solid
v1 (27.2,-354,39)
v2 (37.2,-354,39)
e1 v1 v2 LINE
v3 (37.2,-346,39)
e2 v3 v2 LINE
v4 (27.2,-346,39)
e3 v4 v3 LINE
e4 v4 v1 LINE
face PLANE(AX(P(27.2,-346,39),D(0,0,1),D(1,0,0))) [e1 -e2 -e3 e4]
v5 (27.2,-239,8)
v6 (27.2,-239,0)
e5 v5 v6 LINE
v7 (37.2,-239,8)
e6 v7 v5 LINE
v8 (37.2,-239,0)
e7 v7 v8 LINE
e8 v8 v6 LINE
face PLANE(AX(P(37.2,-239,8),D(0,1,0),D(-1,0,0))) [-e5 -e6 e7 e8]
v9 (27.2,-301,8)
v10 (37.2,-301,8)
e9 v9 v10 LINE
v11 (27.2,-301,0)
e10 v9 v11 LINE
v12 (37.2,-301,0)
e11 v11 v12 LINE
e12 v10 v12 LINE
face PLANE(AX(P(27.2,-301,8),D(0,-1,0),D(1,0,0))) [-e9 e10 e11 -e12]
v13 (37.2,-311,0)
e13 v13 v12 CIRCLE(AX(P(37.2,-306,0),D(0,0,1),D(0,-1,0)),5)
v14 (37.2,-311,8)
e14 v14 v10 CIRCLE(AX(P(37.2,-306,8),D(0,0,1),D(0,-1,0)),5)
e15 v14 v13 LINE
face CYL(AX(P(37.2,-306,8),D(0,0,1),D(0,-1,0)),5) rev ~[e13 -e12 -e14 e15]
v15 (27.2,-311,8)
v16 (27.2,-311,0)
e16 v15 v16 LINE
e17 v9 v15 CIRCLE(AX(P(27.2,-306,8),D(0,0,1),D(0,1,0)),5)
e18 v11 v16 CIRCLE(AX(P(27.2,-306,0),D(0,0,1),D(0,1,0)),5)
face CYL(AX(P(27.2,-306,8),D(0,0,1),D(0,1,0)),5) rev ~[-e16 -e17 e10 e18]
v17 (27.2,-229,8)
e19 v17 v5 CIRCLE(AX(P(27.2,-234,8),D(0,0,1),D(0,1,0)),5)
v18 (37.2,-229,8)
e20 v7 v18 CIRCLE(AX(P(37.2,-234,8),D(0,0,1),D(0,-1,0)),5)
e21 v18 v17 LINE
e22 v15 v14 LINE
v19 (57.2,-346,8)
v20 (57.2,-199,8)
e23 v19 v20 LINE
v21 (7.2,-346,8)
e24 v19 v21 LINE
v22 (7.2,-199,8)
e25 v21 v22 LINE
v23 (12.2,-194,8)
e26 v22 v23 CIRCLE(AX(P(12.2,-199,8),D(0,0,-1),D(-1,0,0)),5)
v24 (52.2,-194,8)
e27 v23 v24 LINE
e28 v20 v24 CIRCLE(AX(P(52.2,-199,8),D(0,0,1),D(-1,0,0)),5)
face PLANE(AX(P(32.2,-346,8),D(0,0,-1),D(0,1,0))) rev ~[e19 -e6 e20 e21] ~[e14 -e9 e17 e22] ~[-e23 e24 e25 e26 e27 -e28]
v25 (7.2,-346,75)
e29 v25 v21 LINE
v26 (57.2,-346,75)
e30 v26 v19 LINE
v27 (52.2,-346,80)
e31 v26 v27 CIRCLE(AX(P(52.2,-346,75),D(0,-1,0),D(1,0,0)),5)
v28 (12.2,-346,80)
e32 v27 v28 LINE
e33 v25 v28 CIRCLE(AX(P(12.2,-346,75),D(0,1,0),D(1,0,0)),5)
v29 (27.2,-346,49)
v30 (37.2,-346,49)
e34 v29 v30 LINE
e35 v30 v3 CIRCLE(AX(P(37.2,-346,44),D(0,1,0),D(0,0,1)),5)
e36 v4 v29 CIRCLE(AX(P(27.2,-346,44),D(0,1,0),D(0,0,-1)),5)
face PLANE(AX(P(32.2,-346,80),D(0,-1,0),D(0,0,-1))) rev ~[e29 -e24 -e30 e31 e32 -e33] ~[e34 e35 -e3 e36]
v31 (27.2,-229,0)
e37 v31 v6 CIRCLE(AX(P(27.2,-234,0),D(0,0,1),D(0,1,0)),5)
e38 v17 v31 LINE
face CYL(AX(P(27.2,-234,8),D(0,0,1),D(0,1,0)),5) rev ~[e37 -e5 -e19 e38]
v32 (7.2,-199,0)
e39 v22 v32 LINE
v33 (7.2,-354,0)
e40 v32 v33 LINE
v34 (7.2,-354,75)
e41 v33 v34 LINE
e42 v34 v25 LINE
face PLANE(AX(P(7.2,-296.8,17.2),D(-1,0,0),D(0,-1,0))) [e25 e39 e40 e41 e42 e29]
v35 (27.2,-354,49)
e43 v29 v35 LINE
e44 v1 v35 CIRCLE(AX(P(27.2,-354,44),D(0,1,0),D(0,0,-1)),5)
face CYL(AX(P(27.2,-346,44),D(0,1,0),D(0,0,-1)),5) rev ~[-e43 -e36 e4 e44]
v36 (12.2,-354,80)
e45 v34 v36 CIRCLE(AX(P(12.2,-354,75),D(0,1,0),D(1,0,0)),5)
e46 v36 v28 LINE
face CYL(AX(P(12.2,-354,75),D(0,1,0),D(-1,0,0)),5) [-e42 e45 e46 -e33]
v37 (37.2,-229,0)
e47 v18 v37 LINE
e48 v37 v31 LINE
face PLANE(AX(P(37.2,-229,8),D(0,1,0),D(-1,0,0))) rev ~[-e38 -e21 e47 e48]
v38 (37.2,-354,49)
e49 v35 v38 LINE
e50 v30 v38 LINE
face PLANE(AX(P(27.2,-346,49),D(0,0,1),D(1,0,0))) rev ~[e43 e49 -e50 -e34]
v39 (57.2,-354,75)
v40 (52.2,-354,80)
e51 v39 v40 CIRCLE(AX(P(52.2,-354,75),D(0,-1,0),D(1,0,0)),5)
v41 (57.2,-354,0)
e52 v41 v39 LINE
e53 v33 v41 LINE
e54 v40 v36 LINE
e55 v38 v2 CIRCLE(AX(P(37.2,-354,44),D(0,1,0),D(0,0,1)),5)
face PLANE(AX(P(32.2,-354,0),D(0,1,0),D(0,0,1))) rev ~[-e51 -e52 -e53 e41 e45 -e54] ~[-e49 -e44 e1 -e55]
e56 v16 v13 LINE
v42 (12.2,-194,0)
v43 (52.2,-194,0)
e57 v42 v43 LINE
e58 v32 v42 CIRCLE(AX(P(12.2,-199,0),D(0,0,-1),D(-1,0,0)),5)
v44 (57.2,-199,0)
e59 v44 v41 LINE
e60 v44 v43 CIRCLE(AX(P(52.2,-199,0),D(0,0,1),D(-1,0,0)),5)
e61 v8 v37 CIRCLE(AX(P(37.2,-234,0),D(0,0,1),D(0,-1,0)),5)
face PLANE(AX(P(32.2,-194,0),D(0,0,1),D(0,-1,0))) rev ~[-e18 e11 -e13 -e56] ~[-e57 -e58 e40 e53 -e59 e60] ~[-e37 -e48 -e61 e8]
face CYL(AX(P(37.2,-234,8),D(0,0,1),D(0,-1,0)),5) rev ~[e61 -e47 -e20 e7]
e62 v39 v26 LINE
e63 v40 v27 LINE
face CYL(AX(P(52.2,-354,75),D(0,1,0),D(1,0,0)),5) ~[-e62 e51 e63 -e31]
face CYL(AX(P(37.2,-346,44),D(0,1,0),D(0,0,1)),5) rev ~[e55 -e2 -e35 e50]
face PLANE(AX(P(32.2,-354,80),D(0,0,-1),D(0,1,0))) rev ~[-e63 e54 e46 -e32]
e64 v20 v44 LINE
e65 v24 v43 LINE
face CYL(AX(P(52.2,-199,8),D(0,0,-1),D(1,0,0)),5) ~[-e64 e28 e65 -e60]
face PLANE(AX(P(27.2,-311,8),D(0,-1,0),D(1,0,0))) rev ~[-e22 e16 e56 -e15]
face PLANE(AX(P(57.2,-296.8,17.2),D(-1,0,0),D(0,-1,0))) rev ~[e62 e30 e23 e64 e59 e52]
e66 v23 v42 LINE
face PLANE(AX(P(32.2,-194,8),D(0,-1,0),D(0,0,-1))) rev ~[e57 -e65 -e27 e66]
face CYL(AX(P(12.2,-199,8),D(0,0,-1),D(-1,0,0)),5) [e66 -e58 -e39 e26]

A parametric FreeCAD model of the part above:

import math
import FreeCAD as App
import Part
import Sketcher


def edges_at(feature, points):
    """Names of the edges that pass closest to the given points."""
    edges = feature.Shape.Edges
    near = lambda p: min(range(len(edges)), key=lambda i: edges[i].distToShape(Part.Vertex(*p))[0])
    return sorted({f"Edge{near(p) + 1}" for p in points})


def add_polygon(sketch, points):
    """Adds a closed chain of lines whose ends are joined by coincident constraints."""
    first, n = sketch.GeometryCount, len(points)
    for a, b in zip(points, points[1:] + points[:1]):
        sketch.addGeometry(Part.LineSegment(App.Vector(*a, 0), App.Vector(*b, 0)), False)
    for i in range(n):
        sketch.addConstraint(Sketcher.Constraint("Coincident", first + i, 2, first + (i + 1) % n, 1))

doc = App.newDocument("Part")
body = doc.addObject("PartDesign::Body", "Body")

# Sketch on XY plane
sketch1 = body.newObject("Sketcher::SketchObject", "Sketch")
sketch1.AttachmentSupport = (doc.getObject("XY_Plane"), [""])
sketch1.MapMode = "FlatFace"
add_polygon(sketch1, [(0, 80), (0, 0), (160, 0), (160, 8), (8, 8), (8, 80)])  # lines 0-5
sketch1.addConstraint([
    Sketcher.Constraint("Vertical", 0),
    Sketcher.Constraint("Horizontal", 1),
    Sketcher.Constraint("Vertical", 2),
    Sketcher.Constraint("Horizontal", 3),
    Sketcher.Constraint("Vertical", 4),
    Sketcher.Constraint("Horizontal", 5),
    Sketcher.Constraint("Coincident", 0, 2, -1, 1),
    Sketcher.Constraint("Equal", 5, 2),
    Sketcher.Constraint("DistanceX", 1, 1, 1, 2, 160.0),
    Sketcher.Constraint("DistanceX", 3, 2, 3, 1, 152.0),
    Sketcher.Constraint("DistanceY", 0, 2, 0, 1, 80.0),
])
pad1 = body.newObject("PartDesign::Pad", "Pad")
pad1.Profile = sketch1
pad1.Length = 50
pad1.Midplane = True

# Sketch on XZ plane
sketch2 = body.newObject("Sketcher::SketchObject", "Sketch001")
sketch2.AttachmentSupport = (doc.getObject("XZ_Plane"), [""])
sketch2.MapMode = "FlatFace"
sketch2.AttachmentOffset = App.Placement(App.Vector(0, 0, -8), App.Rotation())
sketch2.addGeometry([
    Part.ArcOfCircle(Part.Circle(App.Vector(120, 5, 0), App.Vector(0, 0, 1), 5), math.radians(0), math.radians(180)),  # 0
    Part.LineSegment(App.Vector(125, 5, 0), App.Vector(125, -5, 0)),  # 1
    Part.ArcOfCircle(Part.Circle(App.Vector(120, -5, 0), App.Vector(0, 0, 1), 5), math.radians(180), math.radians(360)),  # 2
    Part.LineSegment(App.Vector(115, -5, 0), App.Vector(115, 5, 0)),  # 3
    Part.ArcOfCircle(Part.Circle(App.Vector(48, -5, 0), App.Vector(0, 0, 1), 5), math.radians(180), math.radians(360)),  # 4
    Part.LineSegment(App.Vector(43, -5, 0), App.Vector(43, 5, 0)),  # 5
    Part.ArcOfCircle(Part.Circle(App.Vector(48, 5, 0), App.Vector(0, 0, 1), 5), math.radians(0), math.radians(180)),  # 6
    Part.LineSegment(App.Vector(53, 5, 0), App.Vector(53, -5, 0)),  # 7
], False)
sketch2.addConstraint([
    Sketcher.Constraint("Tangent", 0, 1, 1, 1),
    Sketcher.Constraint("Tangent", 1, 2, 2, 2),
    Sketcher.Constraint("Tangent", 2, 1, 3, 1),
    Sketcher.Constraint("Tangent", 3, 2, 0, 2),
    Sketcher.Constraint("Tangent", 4, 1, 5, 1),
    Sketcher.Constraint("Tangent", 5, 2, 6, 2),
    Sketcher.Constraint("Tangent", 6, 1, 7, 1),
    Sketcher.Constraint("Tangent", 7, 2, 4, 2),
    Sketcher.Constraint("Vertical", 1),
    Sketcher.Constraint("Vertical", 3),
    Sketcher.Constraint("Vertical", 5),
    Sketcher.Constraint("Vertical", 7),
    Sketcher.Constraint("Equal", 2, 4),
    Sketcher.Constraint("Horizontal", 2, 3, 4, 3),
    Sketcher.Constraint("Horizontal", 0, 3, 6, 3),
    Sketcher.Constraint("Radius", 0, 5.0),
    Sketcher.Constraint("DistanceY", 1, 2, 1, 1, 10.0),
    Sketcher.Constraint("DistanceX", -1, 1, 0, 3, 120.0),
    Sketcher.Constraint("DistanceY", -1, 1, 0, 3, 5.0),
    Sketcher.Constraint("DistanceX", -1, 1, 4, 3, 48.0),
])
pocket1 = body.newObject("PartDesign::Pocket", "Pocket")
pocket1.Profile = sketch2
pocket1.Type = "ThroughAll"
pocket1.Reversed = True

# Sketch on YZ plane
sketch3 = body.newObject("Sketcher::SketchObject", "Sketch002")
sketch3.AttachmentSupport = (doc.getObject("YZ_Plane"), [""])
sketch3.MapMode = "FlatFace"
sketch3.AttachmentOffset = App.Placement(App.Vector(0, 0, 8), App.Rotation())
sketch3.addGeometry([
    Part.ArcOfCircle(Part.Circle(App.Vector(44, -5, 0), App.Vector(0, 0, 1), 5), math.radians(180), math.radians(360)),
    Part.LineSegment(App.Vector(49, -5, 0), App.Vector(49, 5, 0)),
    Part.ArcOfCircle(Part.Circle(App.Vector(44, 5, 0), App.Vector(0, 0, 1), 5), math.radians(0), math.radians(180)),
    Part.LineSegment(App.Vector(39, 5, 0), App.Vector(39, -5, 0)),
], False)
sketch3.addConstraint([
    Sketcher.Constraint("Tangent", 0, 2, 1, 1),
    Sketcher.Constraint("Tangent", 1, 2, 2, 1),
    Sketcher.Constraint("Tangent", 2, 2, 3, 1),
    Sketcher.Constraint("Tangent", 3, 2, 0, 1),
    Sketcher.Constraint("Vertical", 1),
    Sketcher.Constraint("Vertical", 3),
    Sketcher.Constraint("Radius", 0, 5.0),
    Sketcher.Constraint("DistanceY", 1, 1, 1, 2, 10.0),
    Sketcher.Constraint("DistanceX", -1, 1, 0, 3, 44.0),
    Sketcher.Constraint("DistanceY", 0, 3, -1, 1, 5.0),
])
pocket2 = body.newObject("PartDesign::Pocket", "Pocket001")
pocket2.Profile = sketch3
pocket2.Type = "ThroughAll"
doc.recompute()

fillet = body.newObject("PartDesign::Fillet", "Fillet")
fillet.Base = (pocket2, edges_at(pocket2, [
    (4, 80, 25),
    (4, 80, -25),
    (160, 4, -25),
    (160, 4, 25),
]))
fillet.Radius = 5
body2 = doc.addObject("PartDesign::Body", "Body001")
doc.recompute()

body.Placement = App.Placement(App.Vector(0, 0, 0), App.Rotation(App.Vector(1, 0, 0), 90))
boolean = body2.newObject("PartDesign::Boolean", "Boolean")
boolean.Type = "Fuse"
boolean.addObjects([body])
body3 = doc.addObject("PartDesign::Body", "Body002")
doc.recompute()

body2.Placement = App.Placement(App.Vector(32.2, -354, 0), App.Rotation(App.Vector(0, 0, 1), 90))
boolean2 = body3.newObject("PartDesign::Boolean", "Boolean001")
boolean2.Type = "Fuse"
boolean2.addObjects([body2])

doc.recompute()
